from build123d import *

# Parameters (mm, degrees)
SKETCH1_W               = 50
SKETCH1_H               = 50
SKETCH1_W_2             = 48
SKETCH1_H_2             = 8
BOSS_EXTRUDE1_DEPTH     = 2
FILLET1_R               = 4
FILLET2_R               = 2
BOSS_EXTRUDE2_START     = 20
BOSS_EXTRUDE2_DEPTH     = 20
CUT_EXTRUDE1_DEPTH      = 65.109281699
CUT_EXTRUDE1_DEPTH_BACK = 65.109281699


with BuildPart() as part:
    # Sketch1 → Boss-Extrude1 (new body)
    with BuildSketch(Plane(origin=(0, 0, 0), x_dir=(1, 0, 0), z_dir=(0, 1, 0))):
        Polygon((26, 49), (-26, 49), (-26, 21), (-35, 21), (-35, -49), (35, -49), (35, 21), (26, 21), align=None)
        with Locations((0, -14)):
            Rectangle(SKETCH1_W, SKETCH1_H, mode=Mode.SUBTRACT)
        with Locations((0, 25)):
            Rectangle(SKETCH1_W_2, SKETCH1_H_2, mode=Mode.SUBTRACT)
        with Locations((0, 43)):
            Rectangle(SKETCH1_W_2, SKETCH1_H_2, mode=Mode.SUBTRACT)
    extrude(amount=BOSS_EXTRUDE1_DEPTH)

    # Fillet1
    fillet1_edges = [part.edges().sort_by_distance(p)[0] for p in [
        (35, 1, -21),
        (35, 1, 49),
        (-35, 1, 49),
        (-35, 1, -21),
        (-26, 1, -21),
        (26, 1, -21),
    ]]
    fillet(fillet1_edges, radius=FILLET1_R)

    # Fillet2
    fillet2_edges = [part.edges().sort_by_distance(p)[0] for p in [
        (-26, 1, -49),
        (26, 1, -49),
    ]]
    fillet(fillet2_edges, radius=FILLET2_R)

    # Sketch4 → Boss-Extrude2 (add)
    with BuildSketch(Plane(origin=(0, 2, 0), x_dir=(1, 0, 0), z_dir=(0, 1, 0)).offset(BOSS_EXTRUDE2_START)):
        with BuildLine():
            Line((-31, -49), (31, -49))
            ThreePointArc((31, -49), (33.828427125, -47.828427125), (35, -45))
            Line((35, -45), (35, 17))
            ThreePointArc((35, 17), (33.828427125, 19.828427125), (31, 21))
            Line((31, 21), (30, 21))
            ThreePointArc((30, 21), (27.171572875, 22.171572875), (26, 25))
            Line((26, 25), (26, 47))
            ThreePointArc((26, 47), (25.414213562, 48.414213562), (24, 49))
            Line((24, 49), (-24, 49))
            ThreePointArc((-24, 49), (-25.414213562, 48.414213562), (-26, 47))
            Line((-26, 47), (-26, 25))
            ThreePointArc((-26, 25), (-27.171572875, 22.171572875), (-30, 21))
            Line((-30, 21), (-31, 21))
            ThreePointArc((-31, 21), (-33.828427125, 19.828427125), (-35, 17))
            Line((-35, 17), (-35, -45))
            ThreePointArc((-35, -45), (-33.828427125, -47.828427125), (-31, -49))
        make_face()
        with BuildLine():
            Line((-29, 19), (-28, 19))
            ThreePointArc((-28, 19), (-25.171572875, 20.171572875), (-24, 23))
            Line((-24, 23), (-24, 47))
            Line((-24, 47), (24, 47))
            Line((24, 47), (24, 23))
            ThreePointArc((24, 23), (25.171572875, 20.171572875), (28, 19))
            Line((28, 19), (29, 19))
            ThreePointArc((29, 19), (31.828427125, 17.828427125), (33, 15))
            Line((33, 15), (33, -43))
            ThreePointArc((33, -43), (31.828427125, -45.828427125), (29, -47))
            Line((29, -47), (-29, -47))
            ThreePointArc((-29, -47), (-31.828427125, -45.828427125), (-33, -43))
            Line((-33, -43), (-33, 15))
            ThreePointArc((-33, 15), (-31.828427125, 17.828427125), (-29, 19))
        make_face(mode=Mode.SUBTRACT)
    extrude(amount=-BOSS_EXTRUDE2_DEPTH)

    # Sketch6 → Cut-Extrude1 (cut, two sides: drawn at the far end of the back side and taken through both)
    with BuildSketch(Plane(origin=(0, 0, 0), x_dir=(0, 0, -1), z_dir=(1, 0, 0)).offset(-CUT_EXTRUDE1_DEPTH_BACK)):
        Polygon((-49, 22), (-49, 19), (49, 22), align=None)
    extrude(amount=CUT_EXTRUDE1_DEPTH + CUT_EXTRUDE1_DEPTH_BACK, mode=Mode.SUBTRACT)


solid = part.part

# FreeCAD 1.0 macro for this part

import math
import FreeCAD as App
import Part
import Sketcher

V = App.Vector


def edges_at(feature, points):
    """Names of the edges that pass closest to the given points."""
    edges = feature.Shape.Edges
    near = lambda p: min(range(len(edges)), key=lambda i: edges[i].distToShape(Part.Vertex(*p))[0])
    return sorted({f"Edge{near(p) + 1}" for p in points})

doc = App.newDocument("Part")
params = doc.addObject("Spreadsheet::Sheet", "Params")
for row, (alias, value) in enumerate([
    ("sketch1_width", "52 mm"),
    ("sketch1_width2", "9 mm"),
    ("sketch1_width3", "50 mm"),
    ("sketch1_width4", "48 mm"),
    ("sketch1_height", "28 mm"),
    ("pad1_length", "2 mm"),
    ("fillet_radius", "4 mm"),
    ("fillet2_radius", "2 mm"),
    ("sketch2_radius", "4 mm"),
    ("sketch2_radius2", "2 mm"),
    ("sketch2_width", "62 mm"),
    ("sketch2_width2", "1 mm"),
    ("sketch2_height", "22 mm"),
    ("pad2_length", "20 mm"),
    ("sketch3_width", "3 mm"),
    ("sketch3_height", "98 mm"),
], start=1):
    params.set(f"A{row}", alias)
    params.set(f"B{row}", "=" + value)
    params.setAlias(f"B{row}", alias)

body = doc.addObject("PartDesign::Body", "Body")

sketch1 = body.newObject("Sketcher::SketchObject", "Sketch")
sketch1.AttachmentSupport = (doc.getObject("XZ_Plane"), [""])
sketch1.MapMode = "FlatFace"
sketch1.addGeometry([
    Part.LineSegment(V(26, -49, 0), V(-26, -49, 0)),
    Part.LineSegment(V(-26, -49, 0), V(-26, -21, 0)),
    Part.LineSegment(V(-26, -21, 0), V(-35, -21, 0)),
    Part.LineSegment(V(-35, -21, 0), V(-35, 49, 0)),
    Part.LineSegment(V(-35, 49, 0), V(35, 49, 0)),
    Part.LineSegment(V(35, 49, 0), V(35, -21, 0)),
    Part.LineSegment(V(35, -21, 0), V(26, -21, 0)),
    Part.LineSegment(V(26, -21, 0), V(26, -49, 0)),
    Part.LineSegment(V(25, 39, 0), V(-25, 39, 0)),
    Part.LineSegment(V(-25, 39, 0), V(-25, -11, 0)),
    Part.LineSegment(V(-25, -11, 0), V(25, -11, 0)),
    Part.LineSegment(V(25, -11, 0), V(25, 39, 0)),
    Part.LineSegment(V(24, -21, 0), V(-24, -21, 0)),
    Part.LineSegment(V(-24, -21, 0), V(-24, -29, 0)),
    Part.LineSegment(V(-24, -29, 0), V(24, -29, 0)),
    Part.LineSegment(V(24, -29, 0), V(24, -21, 0)),
    Part.LineSegment(V(24, -39, 0), V(-24, -39, 0)),
    Part.LineSegment(V(-24, -39, 0), V(-24, -47, 0)),
    Part.LineSegment(V(-24, -47, 0), V(24, -47, 0)),
    Part.LineSegment(V(24, -47, 0), V(24, -39, 0)),
], False)
sketch1.addConstraint([
    Sketcher.Constraint("Coincident", 0, 2, 1, 1),
    Sketcher.Constraint("Coincident", 1, 2, 2, 1),
    Sketcher.Constraint("Coincident", 2, 2, 3, 1),
    Sketcher.Constraint("Coincident", 3, 2, 4, 1),
    Sketcher.Constraint("Coincident", 4, 2, 5, 1),
    Sketcher.Constraint("Coincident", 5, 2, 6, 1),
    Sketcher.Constraint("Coincident", 6, 2, 7, 1),
    Sketcher.Constraint("Coincident", 7, 2, 0, 1),
    Sketcher.Constraint("Coincident", 8, 2, 9, 1),
    Sketcher.Constraint("Coincident", 9, 2, 10, 1),
    Sketcher.Constraint("Coincident", 10, 2, 11, 1),
    Sketcher.Constraint("Coincident", 11, 2, 8, 1),
    Sketcher.Constraint("Coincident", 12, 2, 13, 1),
    Sketcher.Constraint("Coincident", 13, 2, 14, 1),
    Sketcher.Constraint("Coincident", 14, 2, 15, 1),
    Sketcher.Constraint("Coincident", 15, 2, 12, 1),
    Sketcher.Constraint("Coincident", 16, 2, 17, 1),
    Sketcher.Constraint("Coincident", 17, 2, 18, 1),
    Sketcher.Constraint("Coincident", 18, 2, 19, 1),
    Sketcher.Constraint("Coincident", 19, 2, 16, 1),
    Sketcher.Constraint("Horizontal", 0),
    Sketcher.Constraint("Vertical", 1),
    Sketcher.Constraint("Horizontal", 2),
    Sketcher.Constraint("Vertical", 3),
    Sketcher.Constraint("Horizontal", 4),
    Sketcher.Constraint("Vertical", 5),
    Sketcher.Constraint("Horizontal", 6),
    Sketcher.Constraint("Vertical", 7),
    Sketcher.Constraint("Horizontal", 8),
    Sketcher.Constraint("Vertical", 9),
    Sketcher.Constraint("Horizontal", 10),
    Sketcher.Constraint("Vertical", 11),
    Sketcher.Constraint("Horizontal", 12),
    Sketcher.Constraint("Vertical", 13),
    Sketcher.Constraint("Horizontal", 14),
    Sketcher.Constraint("Vertical", 15),
    Sketcher.Constraint("Horizontal", 16),
    Sketcher.Constraint("Vertical", 17),
    Sketcher.Constraint("Horizontal", 18),
    Sketcher.Constraint("Vertical", 19),
    Sketcher.Constraint("Symmetric", 2, 2, 5, 2, -2),
    Sketcher.Constraint("Horizontal", 6, 2, 12, 2),
    Sketcher.Constraint("Vertical", 13, 2, 16, 2),
    Sketcher.Constraint("Vertical", 15, 2, 18, 2),
    Sketcher.Constraint("Equal", 2, 6),
    Sketcher.Constraint("Equal", 4, 3),
    Sketcher.Constraint("Equal", 10, 9),
    Sketcher.Constraint("Equal", 15, 17),
    Sketcher.Constraint("DistanceX", 0, 2, 0, 1, 52.0),
    Sketcher.Constraint("DistanceX", 2, 2, 2, 1, 9.0),
    Sketcher.Constraint("DistanceX", 8, 2, 8, 1, 50.0),
    Sketcher.Constraint("DistanceX", 12, 2, 12, 1, 48.0),
    Sketcher.Constraint("DistanceY", 1, 1, 1, 2, 28.0),
    Sketcher.Constraint("DistanceY", 13, 2, 13, 1, 8.0),
    Sketcher.Constraint("DistanceY", 0, 2, -1, 1, 49.0),
    Sketcher.Constraint("DistanceX", 8, 2, -1, 1, 25.0),
    Sketcher.Constraint("DistanceY", -1, 1, 8, 2, 39.0),
    Sketcher.Constraint("DistanceX", 12, 2, -1, 1, 24.0),
    Sketcher.Constraint("DistanceY", 16, 2, -1, 1, 39.0),
])
sketch1.setExpression("Constraints[48]", "Params.sketch1_width")
sketch1.setExpression("Constraints[49]", "Params.sketch1_width2")
sketch1.setExpression("Constraints[50]", "Params.sketch1_width3")
sketch1.setExpression("Constraints[51]", "Params.sketch1_width4")
sketch1.setExpression("Constraints[52]", "Params.sketch1_height")
pad1 = body.newObject("PartDesign::Pad", "Pad")
pad1.Profile = sketch1
pad1.setExpression("Length", "Params.pad1_length")
pad1.Reversed = True
doc.recompute()

fillet = body.newObject("PartDesign::Fillet", "Fillet")
fillet.Base = (pad1, edges_at(pad1, [
    (35, 1, -21),
    (35, 1, 49),
    (-35, 1, 49),
    (-35, 1, -21),
    (-26, 1, -21),
    (26, 1, -21),
]))
fillet.setExpression("Radius", "Params.fillet_radius")
doc.recompute()

fillet2 = body.newObject("PartDesign::Fillet", "Fillet001")
fillet2.Base = (fillet, edges_at(fillet, [(-26, 1, -49), (26, 1, -49)]))
fillet2.setExpression("Radius", "Params.fillet2_radius")

sketch2 = body.newObject("Sketcher::SketchObject", "Sketch001")
sketch2.AttachmentSupport = (doc.getObject("XZ_Plane"), [""])
sketch2.MapMode = "FlatFace"
sketch2.AttachmentOffset = App.Placement(V(0, 0, -22), App.Rotation())
sketch2.addGeometry([
    Part.LineSegment(V(-31, 49, 0), V(31, 49, 0)),
    Part.ArcOfCircle(Part.Circle(V(31, 45, 0), V(0, 0, 1), 4), math.radians(0), math.radians(90)),
    Part.LineSegment(V(35, 45, 0), V(35, -17, 0)),
    Part.ArcOfCircle(Part.Circle(V(31, -17, 0), V(0, 0, 1), 4), math.radians(-90), math.radians(0)),
    Part.LineSegment(V(31, -21, 0), V(30, -21, 0)),
    Part.ArcOfCircle(Part.Circle(V(30, -25, 0), V(0, 0, 1), 4), math.radians(90), math.radians(180)),
    Part.LineSegment(V(26, -25, 0), V(26, -47, 0)),
    Part.ArcOfCircle(Part.Circle(V(24, -47, 0), V(0, 0, 1), 2), math.radians(-90), math.radians(0)),
    Part.LineSegment(V(24, -49, 0), V(-24, -49, 0)),
    Part.ArcOfCircle(Part.Circle(V(-24, -47, 0), V(0, 0, 1), 2), math.radians(-180), math.radians(-90)),
    Part.LineSegment(V(-26, -47, 0), V(-26, -25, 0)),
    Part.ArcOfCircle(Part.Circle(V(-30, -25, 0), V(0, 0, 1), 4), math.radians(0), math.radians(90)),
    Part.LineSegment(V(-30, -21, 0), V(-31, -21, 0)),
    Part.ArcOfCircle(Part.Circle(V(-31, -17, 0), V(0, 0, 1), 4), math.radians(180), math.radians(270)),
    Part.LineSegment(V(-35, -17, 0), V(-35, 45, 0)),
    Part.ArcOfCircle(Part.Circle(V(-31, 45, 0), V(0, 0, 1), 4), math.radians(90), math.radians(180)),
    Part.ArcOfCircle(Part.Circle(V(-29, -15, 0), V(0, 0, 1), 4), math.radians(180), math.radians(270)),
    Part.LineSegment(V(-29, -19, 0), V(-28, -19, 0)),
    Part.ArcOfCircle(Part.Circle(V(-28, -23, 0), V(0, 0, 1), 4), math.radians(0), math.radians(90)),
    Part.LineSegment(V(-24, -23, 0), V(-24, -47, 0)),
    Part.LineSegment(V(-24, -47, 0), V(24, -47, 0)),
    Part.LineSegment(V(24, -47, 0), V(24, -23, 0)),
    Part.ArcOfCircle(Part.Circle(V(28, -23, 0), V(0, 0, 1), 4), math.radians(90), math.radians(180)),
    Part.LineSegment(V(28, -19, 0), V(29, -19, 0)),
    Part.ArcOfCircle(Part.Circle(V(29, -15, 0), V(0, 0, 1), 4), math.radians(-90), math.radians(0)),
    Part.LineSegment(V(33, -15, 0), V(33, 43, 0)),
    Part.ArcOfCircle(Part.Circle(V(29, 43, 0), V(0, 0, 1), 4), math.radians(0), math.radians(90)),
    Part.LineSegment(V(29, 47, 0), V(-29, 47, 0)),
    Part.ArcOfCircle(Part.Circle(V(-29, 43, 0), V(0, 0, 1), 4), math.radians(90), math.radians(180)),
    Part.LineSegment(V(-33, 43, 0), V(-33, -15, 0)),
], False)
sketch2.addConstraint([
    Sketcher.Constraint("Tangent", 0, 2, 1, 2),
    Sketcher.Constraint("Tangent", 1, 1, 2, 1),
    Sketcher.Constraint("Tangent", 2, 2, 3, 2),
    Sketcher.Constraint("Tangent", 3, 1, 4, 1),
    Sketcher.Constraint("Tangent", 4, 2, 5, 1),
    Sketcher.Constraint("Tangent", 5, 2, 6, 1),
    Sketcher.Constraint("Tangent", 6, 2, 7, 2),
    Sketcher.Constraint("Tangent", 7, 1, 8, 1),
    Sketcher.Constraint("Tangent", 8, 2, 9, 2),
    Sketcher.Constraint("Tangent", 9, 1, 10, 1),
    Sketcher.Constraint("Tangent", 10, 2, 11, 1),
    Sketcher.Constraint("Tangent", 11, 2, 12, 1),
    Sketcher.Constraint("Tangent", 12, 2, 13, 2),
    Sketcher.Constraint("Tangent", 13, 1, 14, 1),
    Sketcher.Constraint("Tangent", 14, 2, 15, 2),
    Sketcher.Constraint("Tangent", 15, 1, 0, 1),
    Sketcher.Constraint("Tangent", 16, 2, 17, 1),
    Sketcher.Constraint("Tangent", 17, 2, 18, 2),
    Sketcher.Constraint("Tangent", 18, 1, 19, 1),
    Sketcher.Constraint("Coincident", 19, 2, 20, 1),
    Sketcher.Constraint("Coincident", 20, 2, 21, 1),
    Sketcher.Constraint("Tangent", 21, 2, 22, 2),
    Sketcher.Constraint("Tangent", 22, 1, 23, 1),
    Sketcher.Constraint("Tangent", 23, 2, 24, 1),
    Sketcher.Constraint("Tangent", 24, 2, 25, 1),
    Sketcher.Constraint("Tangent", 25, 2, 26, 1),
    Sketcher.Constraint("Tangent", 26, 2, 27, 1),
    Sketcher.Constraint("Tangent", 27, 2, 28, 1),
    Sketcher.Constraint("Tangent", 28, 2, 29, 1),
    Sketcher.Constraint("Tangent", 29, 2, 16, 1),
    Sketcher.Constraint("Horizontal", 0),
    Sketcher.Constraint("Vertical", 2),
    Sketcher.Constraint("Horizontal", 4),
    Sketcher.Constraint("Vertical", 6),
    Sketcher.Constraint("Horizontal", 8),
    Sketcher.Constraint("Vertical", 10),
    Sketcher.Constraint("Horizontal", 12),
    Sketcher.Constraint("Vertical", 14),
    Sketcher.Constraint("Horizontal", 17),
    Sketcher.Constraint("Vertical", 19),
    Sketcher.Constraint("Horizontal", 20),
    Sketcher.Constraint("Vertical", 21),
    Sketcher.Constraint("Horizontal", 23),
    Sketcher.Constraint("Vertical", 25),
    Sketcher.Constraint("Horizontal", 27),
    Sketcher.Constraint("Vertical", 29),
    Sketcher.Constraint("Coincident", 19, 2, 9, 3),
    Sketcher.Constraint("Coincident", 20, 2, 7, 3),
    Sketcher.Constraint("Equal", 1, 3),
    Sketcher.Constraint("Equal", 3, 5),
    Sketcher.Constraint("Equal", 5, 11),
    Sketcher.Constraint("Equal", 11, 13),
    Sketcher.Constraint("Equal", 13, 15),
    Sketcher.Constraint("Equal", 15, 16),
    Sketcher.Constraint("Equal", 16, 18),
    Sketcher.Constraint("Equal", 18, 22),
    Sketcher.Constraint("Equal", 22, 24),
    Sketcher.Constraint("Equal", 24, 26),
    Sketcher.Constraint("Equal", 26, 28),
    Sketcher.Constraint("Symmetric", 5, 3, 11, 3, -2),
    Sketcher.Constraint("Symmetric", 16, 3, 24, 3, -2),
    Sketcher.Constraint("Equal", 4, 12),
    Sketcher.Constraint("Equal", 12, 17),
    Sketcher.Constraint("Equal", 0, 2),
    Sketcher.Constraint("Equal", 27, 25),
    Sketcher.Constraint("Radius", 1, 4.0),
    Sketcher.Constraint("Radius", 7, 2.0),
    Sketcher.Constraint("DistanceX", 0, 1, 0, 2, 62.0),
    Sketcher.Constraint("DistanceX", 4, 2, 4, 1, 1.0),
    Sketcher.Constraint("DistanceY", 6, 2, 6, 1, 22.0),
    Sketcher.Constraint("DistanceY", 19, 2, 19, 1, 24.0),
    Sketcher.Constraint("DistanceY", -1, 1, 1, 3, 45.0),
])
sketch2.setExpression("Constraints[65]", "Params.sketch2_radius")
sketch2.setExpression("Constraints[66]", "Params.sketch2_radius2")
sketch2.setExpression("Constraints[67]", "Params.sketch2_width")
sketch2.setExpression("Constraints[68]", "Params.sketch2_width2")
sketch2.setExpression("Constraints[69]", "Params.sketch2_height")
pad2 = body.newObject("PartDesign::Pad", "Pad001")
pad2.Profile = sketch2
pad2.setExpression("Length", "Params.pad2_length")

sketch3 = body.newObject("Sketcher::SketchObject", "Sketch002")
sketch3.AttachmentSupport = (doc.getObject("YZ_Plane"), [""])
sketch3.MapMode = "FlatFace"
sketch3.addGeometry([
    Part.LineSegment(V(22, 49, 0), V(19, 49, 0)),
    Part.LineSegment(V(19, 49, 0), V(22, -49, 0)),
    Part.LineSegment(V(22, -49, 0), V(22, 49, 0)),
], False)
sketch3.addConstraint([
    Sketcher.Constraint("Coincident", 0, 2, 1, 1),
    Sketcher.Constraint("Coincident", 1, 2, 2, 1),
    Sketcher.Constraint("Coincident", 2, 2, 0, 1),
    Sketcher.Constraint("Horizontal", 0),
    Sketcher.Constraint("Vertical", 2),
    Sketcher.Constraint("DistanceX", 0, 2, 0, 1, 3.0),
    Sketcher.Constraint("DistanceY", 2, 1, 2, 2, 98.0),
    Sketcher.Constraint("DistanceX", -1, 1, 0, 2, 19.0),
    Sketcher.Constraint("DistanceY", -1, 1, 0, 2, 49.0),
])
sketch3.setExpression("Constraints[5]", "Params.sketch3_width")
sketch3.setExpression("Constraints[6]", "Params.sketch3_height")
pocket1 = body.newObject("PartDesign::Pocket", "Pocket")
pocket1.Profile = sketch3
pocket1.Type = "ThroughAll"
pocket1.Midplane = True

doc.recompute()
